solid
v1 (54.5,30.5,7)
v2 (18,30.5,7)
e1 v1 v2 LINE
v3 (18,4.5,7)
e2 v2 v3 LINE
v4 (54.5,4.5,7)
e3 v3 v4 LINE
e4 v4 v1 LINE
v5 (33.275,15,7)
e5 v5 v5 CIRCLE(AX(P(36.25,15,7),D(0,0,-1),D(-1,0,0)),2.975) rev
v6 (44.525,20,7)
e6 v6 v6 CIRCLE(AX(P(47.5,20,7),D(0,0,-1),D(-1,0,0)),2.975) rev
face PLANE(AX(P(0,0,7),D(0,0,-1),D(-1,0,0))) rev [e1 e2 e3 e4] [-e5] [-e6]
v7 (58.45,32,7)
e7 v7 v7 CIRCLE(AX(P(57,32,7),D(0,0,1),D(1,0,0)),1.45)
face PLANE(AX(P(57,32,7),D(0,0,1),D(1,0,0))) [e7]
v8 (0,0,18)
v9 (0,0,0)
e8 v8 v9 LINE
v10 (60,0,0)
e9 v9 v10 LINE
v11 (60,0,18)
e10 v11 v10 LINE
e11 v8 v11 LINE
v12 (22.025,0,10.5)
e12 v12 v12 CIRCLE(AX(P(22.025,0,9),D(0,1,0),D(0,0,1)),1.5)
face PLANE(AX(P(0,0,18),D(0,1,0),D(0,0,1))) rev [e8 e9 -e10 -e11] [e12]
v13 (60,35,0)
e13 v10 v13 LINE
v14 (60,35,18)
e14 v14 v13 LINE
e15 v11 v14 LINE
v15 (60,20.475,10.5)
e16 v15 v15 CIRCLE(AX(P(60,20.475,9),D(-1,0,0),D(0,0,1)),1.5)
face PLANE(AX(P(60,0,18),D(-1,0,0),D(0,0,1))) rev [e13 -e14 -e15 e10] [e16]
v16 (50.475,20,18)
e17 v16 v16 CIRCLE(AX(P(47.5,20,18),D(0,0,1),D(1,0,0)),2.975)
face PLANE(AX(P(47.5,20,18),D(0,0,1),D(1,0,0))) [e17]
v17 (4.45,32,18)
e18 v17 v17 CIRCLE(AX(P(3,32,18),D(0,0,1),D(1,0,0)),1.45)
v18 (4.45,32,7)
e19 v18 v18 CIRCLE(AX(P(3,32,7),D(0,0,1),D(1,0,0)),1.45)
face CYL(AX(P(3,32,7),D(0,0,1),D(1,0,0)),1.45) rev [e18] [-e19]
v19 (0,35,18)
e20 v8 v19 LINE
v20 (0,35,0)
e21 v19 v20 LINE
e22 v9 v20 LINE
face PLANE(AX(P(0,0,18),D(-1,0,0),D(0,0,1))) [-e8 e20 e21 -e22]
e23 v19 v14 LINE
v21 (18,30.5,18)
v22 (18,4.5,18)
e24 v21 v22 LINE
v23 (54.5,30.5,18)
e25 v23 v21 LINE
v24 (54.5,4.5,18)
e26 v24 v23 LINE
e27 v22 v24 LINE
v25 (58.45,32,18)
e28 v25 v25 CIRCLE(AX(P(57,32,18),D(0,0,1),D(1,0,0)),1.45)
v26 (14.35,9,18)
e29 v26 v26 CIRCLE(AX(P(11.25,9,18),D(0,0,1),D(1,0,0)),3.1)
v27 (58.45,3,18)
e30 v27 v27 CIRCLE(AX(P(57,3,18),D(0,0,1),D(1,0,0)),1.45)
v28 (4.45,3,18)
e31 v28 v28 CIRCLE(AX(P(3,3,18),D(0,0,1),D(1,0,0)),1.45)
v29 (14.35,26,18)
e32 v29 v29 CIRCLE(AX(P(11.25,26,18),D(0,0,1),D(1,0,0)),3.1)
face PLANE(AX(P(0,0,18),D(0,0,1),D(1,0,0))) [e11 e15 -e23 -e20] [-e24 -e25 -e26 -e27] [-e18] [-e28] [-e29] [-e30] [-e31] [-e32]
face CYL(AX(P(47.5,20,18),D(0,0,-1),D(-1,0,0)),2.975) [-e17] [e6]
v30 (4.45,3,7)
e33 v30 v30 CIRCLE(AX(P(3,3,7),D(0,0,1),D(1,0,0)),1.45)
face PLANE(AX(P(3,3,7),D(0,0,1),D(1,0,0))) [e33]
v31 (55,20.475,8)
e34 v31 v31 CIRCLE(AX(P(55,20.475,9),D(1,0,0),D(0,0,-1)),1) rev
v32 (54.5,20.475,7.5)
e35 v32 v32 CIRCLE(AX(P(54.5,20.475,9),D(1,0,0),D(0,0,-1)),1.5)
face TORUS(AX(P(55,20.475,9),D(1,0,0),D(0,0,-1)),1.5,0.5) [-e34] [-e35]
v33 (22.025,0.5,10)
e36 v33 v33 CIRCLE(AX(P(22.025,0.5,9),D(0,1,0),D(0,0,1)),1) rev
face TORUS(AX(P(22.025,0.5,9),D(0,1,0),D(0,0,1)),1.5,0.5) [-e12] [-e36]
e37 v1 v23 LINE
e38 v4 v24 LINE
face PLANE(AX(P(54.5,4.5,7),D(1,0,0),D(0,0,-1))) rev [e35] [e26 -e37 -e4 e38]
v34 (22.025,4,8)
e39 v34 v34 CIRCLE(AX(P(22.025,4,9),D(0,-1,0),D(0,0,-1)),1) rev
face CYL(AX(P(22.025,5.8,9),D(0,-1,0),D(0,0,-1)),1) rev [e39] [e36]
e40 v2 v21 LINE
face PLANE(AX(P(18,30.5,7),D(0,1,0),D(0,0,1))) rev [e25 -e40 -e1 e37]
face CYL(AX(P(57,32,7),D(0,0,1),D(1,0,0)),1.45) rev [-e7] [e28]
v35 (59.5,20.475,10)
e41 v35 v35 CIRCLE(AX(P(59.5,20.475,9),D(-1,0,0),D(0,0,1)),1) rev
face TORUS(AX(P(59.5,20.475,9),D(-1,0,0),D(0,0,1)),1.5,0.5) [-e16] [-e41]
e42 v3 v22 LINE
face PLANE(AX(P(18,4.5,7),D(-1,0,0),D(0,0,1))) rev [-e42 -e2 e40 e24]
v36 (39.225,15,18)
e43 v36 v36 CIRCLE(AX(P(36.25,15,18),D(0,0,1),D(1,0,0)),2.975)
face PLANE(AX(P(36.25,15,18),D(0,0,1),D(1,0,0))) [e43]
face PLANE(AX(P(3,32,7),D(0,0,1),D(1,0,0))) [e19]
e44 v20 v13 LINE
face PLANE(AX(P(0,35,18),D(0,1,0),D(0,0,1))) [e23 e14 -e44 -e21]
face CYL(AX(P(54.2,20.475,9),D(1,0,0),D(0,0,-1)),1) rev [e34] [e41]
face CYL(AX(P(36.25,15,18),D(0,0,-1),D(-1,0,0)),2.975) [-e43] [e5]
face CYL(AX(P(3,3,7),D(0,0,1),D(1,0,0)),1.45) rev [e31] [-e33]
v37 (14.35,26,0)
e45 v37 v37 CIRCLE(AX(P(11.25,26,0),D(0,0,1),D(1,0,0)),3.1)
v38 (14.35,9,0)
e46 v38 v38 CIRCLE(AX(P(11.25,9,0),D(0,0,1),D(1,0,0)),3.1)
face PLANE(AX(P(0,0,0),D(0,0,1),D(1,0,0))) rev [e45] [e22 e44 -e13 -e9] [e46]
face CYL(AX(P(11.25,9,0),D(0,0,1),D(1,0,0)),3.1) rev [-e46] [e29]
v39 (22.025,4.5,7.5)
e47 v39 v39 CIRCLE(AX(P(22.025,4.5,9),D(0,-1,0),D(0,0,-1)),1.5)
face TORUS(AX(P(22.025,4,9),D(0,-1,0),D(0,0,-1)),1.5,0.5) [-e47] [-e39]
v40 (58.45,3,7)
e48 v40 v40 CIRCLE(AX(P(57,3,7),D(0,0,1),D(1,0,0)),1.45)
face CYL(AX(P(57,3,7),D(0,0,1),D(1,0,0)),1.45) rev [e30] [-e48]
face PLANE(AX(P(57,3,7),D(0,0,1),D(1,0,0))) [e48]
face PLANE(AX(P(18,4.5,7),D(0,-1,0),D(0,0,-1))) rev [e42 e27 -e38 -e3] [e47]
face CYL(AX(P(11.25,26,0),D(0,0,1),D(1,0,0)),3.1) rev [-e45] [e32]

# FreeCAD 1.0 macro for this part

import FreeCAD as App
import Part
import Sketcher
from FreeCAD import Vector
Q = App.Units.Quantity


def edges_at(feature, points):
    """Names of the edges that pass closest to the given points."""
    edges = feature.Shape.Edges
    near = lambda p: min(range(len(edges)), key=lambda i: edges[i].distToShape(Part.Vertex(*p))[0])
    return sorted({f"Edge{near(p) + 1}" for p in points})


def add_polygon(sketch, points):
    """Adds a closed chain of lines whose ends are joined by coincident constraints."""
    first, n = sketch.GeometryCount, len(points)
    for a, b in zip(points, points[1:] + points[:1]):
        sketch.addGeometry(Part.LineSegment(App.Vector(*a, 0), App.Vector(*b, 0)), False)
    for i in range(n):
        sketch.addConstraint(Sketcher.Constraint("Coincident", first + i, 2, first + (i + 1) % n, 1))

doc = App.newDocument("Part")
params = doc.addObject("Spreadsheet::Sheet", "Params")
for row, (alias, value) in enumerate([
    ("sketch1_width", "60 mm"),
    ("sketch1_height", "35 mm"),
    ("pad1_length", "18 mm"),
    ("sketch2_diameter", "6.2 mm"),
    ("pocket1_length", "18 mm"),
    ("sketch3_diameter", "2.9 mm"),
    ("sketch3_height", "26 mm"),
    ("sketch3_width", "36.5 mm"),
    ("pocket2_length", "11 mm"),
    ("sketch4_diameter", "5.95 mm"),
    ("pad2_length", "11 mm"),
    ("sketch5_diameter", "2 mm"),
    ("pocket3_length", "5.8 mm"),
    ("sketch6_diameter", "2 mm"),
    ("pocket4_length", "5.8 mm"),
    ("fillet_radius", "0.5 mm"),
], start=1):
    params.set(f"A{row}", alias)
    params.set(f"B{row}", "=" + value)
    params.setAlias(f"B{row}", alias)

body = doc.addObject("PartDesign::Body", "Body")

# Sketch on XY plane
sketch1 = body.newObject("Sketcher::SketchObject", "Sketch")
sketch1.AttachmentSupport = (doc.getObject("XY_Plane"), [""])
sketch1.MapMode = "FlatFace"
add_polygon(sketch1, [(0, 35), (0, 0), (60, 0), (60, 35)])  # lines 0-3
sketch1.addConstraint([
    Sketcher.Constraint("Vertical", 0),
    Sketcher.Constraint("Horizontal", 1),
    Sketcher.Constraint("Vertical", 2),
    Sketcher.Constraint("Horizontal", 3),
    Sketcher.Constraint("Coincident", 0, 2, -1, 1),
    Sketcher.Constraint("DistanceX", 1, 1, 1, 2, Q("60 mm")),
    Sketcher.Constraint("DistanceY", 0, 2, 0, 1, Q("35 mm")),
])
sketch1.setExpression("Constraints[9]", "Params.sketch1_width")
sketch1.setExpression("Constraints[10]", "Params.sketch1_height")
pad1 = body.newObject("PartDesign::Pad", "Pad")
pad1.Profile = sketch1
pad1.setExpression("Length", "Params.pad1_length")

# Sketch on XY plane
sketch2 = body.newObject("Sketcher::SketchObject", "Sketch001")
sketch2.AttachmentSupport = (doc.getObject("XY_Plane"), [""])
sketch2.MapMode = "FlatFace"
sketch2.AttachmentOffset = App.Placement(Vector(0, 0, 18), App.Rotation())
sketch2.addGeometry([
    Part.Circle(Vector(11.25, 26, 0), Vector(0, 0, 1), 3.1),
    Part.Circle(Vector(11.25, 9, 0), Vector(0, 0, 1), 3.1),
], False)
sketch2.addConstraint([
    Sketcher.Constraint("Equal", 0, 1),
    Sketcher.Constraint("Vertical", 0, 3, 1, 3),
    Sketcher.Constraint("Diameter", 0, Q("6.2 mm")),
    Sketcher.Constraint("DistanceY", -1, 1, 0, 3, Q("26 mm")),
    Sketcher.Constraint("DistanceY", -1, 1, 1, 3, Q("9 mm")),
    Sketcher.Constraint("DistanceX", -1, 1, 0, 3, Q("11.25 mm")),
])
sketch2.setExpression("Constraints[2]", "Params.sketch2_diameter")
pocket1 = body.newObject("PartDesign::Pocket", "Pocket")
pocket1.Profile = sketch2
pocket1.setExpression("Length", "Params.pocket1_length")

# Sketch on XY plane
sketch3 = body.newObject("Sketcher::SketchObject", "Sketch002")
sketch3.AttachmentSupport = (doc.getObject("XY_Plane"), [""])
sketch3.MapMode = "FlatFace"
sketch3.AttachmentOffset = App.Placement(Vector(0, 0, 18), App.Rotation())
sketch3.addGeometry(Part.Circle(Vector(3, 32, 0), Vector(0, 0, 1), 1.45), False)  # 0
sketch3.addGeometry(Part.Circle(Vector(57, 32, 0), Vector(0, 0, 1), 1.45), False)  # 1
sketch3.addGeometry(Part.Circle(Vector(57, 3, 0), Vector(0, 0, 1), 1.45), False)  # 2
sketch3.addGeometry(Part.Circle(Vector(3, 3, 0), Vector(0, 0, 1), 1.45), False)  # 3
add_polygon(sketch3, [(18, 30.5), (18, 4.5), (54.5, 4.5), (54.5, 30.5)])  # lines 4-7
sketch3.addConstraint([
    Sketcher.Constraint("Vertical", 4),
    Sketcher.Constraint("Horizontal", 5),
    Sketcher.Constraint("Vertical", 6),
    Sketcher.Constraint("Horizontal", 7),
    Sketcher.Constraint("Equal", 0, 1),
    Sketcher.Constraint("Equal", 1, 2),
    Sketcher.Constraint("Equal", 2, 3),
    Sketcher.Constraint("Horizontal", 0, 3, 1, 3),
    Sketcher.Constraint("Horizontal", 2, 3, 3, 3),
    Sketcher.Constraint("Vertical", 1, 3, 2, 3),
    Sketcher.Constraint("Vertical", 0, 3, 3, 3),
    Sketcher.Constraint("Diameter", 0, Q("2.9 mm")),
    Sketcher.Constraint("DistanceY", 4, 2, 4, 1, Q("26 mm")),
    Sketcher.Constraint("DistanceX", 5, 1, 5, 2, Q("36.5 mm")),
    Sketcher.Constraint("DistanceX", -1, 1, 0, 3, Q("3 mm")),
    Sketcher.Constraint("DistanceY", -1, 1, 0, 3, Q("32 mm")),
    Sketcher.Constraint("DistanceX", -1, 1, 1, 3, Q("57 mm")),
    Sketcher.Constraint("DistanceY", -1, 1, 2, 3, Q("3 mm")),
    Sketcher.Constraint("DistanceX", -1, 1, 4, 2, Q("18 mm")),
    Sketcher.Constraint("DistanceY", -1, 1, 4, 2, Q("4.5 mm")),
])
sketch3.setExpression("Constraints[15]", "Params.sketch3_diameter")
sketch3.setExpression("Constraints[16]", "Params.sketch3_height")
sketch3.setExpression("Constraints[17]", "Params.sketch3_width")
pocket2 = body.newObject("PartDesign::Pocket", "Pocket001")
pocket2.Profile = sketch3
pocket2.setExpression("Length", "Params.pocket2_length")

# Sketch on XY plane
sketch4 = body.newObject("Sketcher::SketchObject", "Sketch003")
sketch4.AttachmentSupport = (doc.getObject("XY_Plane"), [""])
sketch4.MapMode = "FlatFace"
sketch4.AttachmentOffset = App.Placement(Vector(0, 0, 7), App.Rotation())
sketch4.addGeometry([
    Part.Circle(Vector(36.25, 15, 0), Vector(0, 0, 1), 2.975),
    Part.Circle(Vector(47.5, 20, 0), Vector(0, 0, 1), 2.975),
], False)
sketch4.addConstraint([
    Sketcher.Constraint("Equal", 0, 1),
    Sketcher.Constraint("Diameter", 0, Q("5.95 mm")),
    Sketcher.Constraint("DistanceY", -1, 1, 0, 3, Q("15 mm")),
    Sketcher.Constraint("DistanceY", -1, 1, 1, 3, Q("20 mm")),
    Sketcher.Constraint("DistanceX", -1, 1, 1, 3, Q("47.5 mm")),
    Sketcher.Constraint("DistanceX", -1, 1, 0, 3, Q("36.25 mm")),
])
sketch4.setExpression("Constraints[1]", "Params.sketch4_diameter")
pad2 = body.newObject("PartDesign::Pad", "Pad001")
pad2.Profile = sketch4
pad2.setExpression("Length", "Params.pad2_length")

# Sketch on YZ plane
sketch5 = body.newObject("Sketcher::SketchObject", "Sketch004")
sketch5.AttachmentSupport = (doc.getObject("YZ_Plane"), [""])
sketch5.MapMode = "FlatFace"
sketch5.AttachmentOffset = App.Placement(Vector(0, 0, 60), App.Rotation())
sketch5.addGeometry(Part.Circle(Vector(20.475, 9, 0), Vector(0, 0, 1), 1), False)
sketch5.addConstraint([
    Sketcher.Constraint("Diameter", 0, Q("2 mm")),
    Sketcher.Constraint("DistanceY", -1, 1, 0, 3, Q("9 mm")),
    Sketcher.Constraint("DistanceX", -1, 1, 0, 3, Q("20.475 mm")),
])
sketch5.setExpression("Constraints[0]", "Params.sketch5_diameter")
pocket3 = body.newObject("PartDesign::Pocket", "Pocket002")
pocket3.Profile = sketch5
pocket3.setExpression("Length", "Params.pocket3_length")

# Sketch on XZ plane
sketch6 = body.newObject("Sketcher::SketchObject", "Sketch005")
sketch6.AttachmentSupport = (doc.getObject("XZ_Plane"), [""])
sketch6.MapMode = "FlatFace"
sketch6.addGeometry(Part.Circle(Vector(22.025, 9, 0), Vector(0, 0, 1), 1), False)
sketch6.addConstraint([
    Sketcher.Constraint("Diameter", 0, Q("2 mm")),
    Sketcher.Constraint("DistanceY", -1, 1, 0, 3, Q("9 mm")),
    Sketcher.Constraint("DistanceX", -1, 1, 0, 3, Q("22.025 mm")),
])
sketch6.setExpression("Constraints[0]", "Params.sketch6_diameter")
pocket4 = body.newObject("PartDesign::Pocket", "Pocket003")
pocket4.Profile = sketch6
pocket4.setExpression("Length", "Params.pocket4_length")
doc.recompute()

fillet = body.newObject("PartDesign::Fillet", "Fillet")
fillet.Base = (pocket4, edges_at(pocket4, [
    (54.5, 20.475, 10),
    (60, 20.475, 10),
    (22.025, 4.5, 10),
    (22.025, 0, 10),
]))
fillet.setExpression("Radius", "Params.fillet_radius")

doc.recompute()
